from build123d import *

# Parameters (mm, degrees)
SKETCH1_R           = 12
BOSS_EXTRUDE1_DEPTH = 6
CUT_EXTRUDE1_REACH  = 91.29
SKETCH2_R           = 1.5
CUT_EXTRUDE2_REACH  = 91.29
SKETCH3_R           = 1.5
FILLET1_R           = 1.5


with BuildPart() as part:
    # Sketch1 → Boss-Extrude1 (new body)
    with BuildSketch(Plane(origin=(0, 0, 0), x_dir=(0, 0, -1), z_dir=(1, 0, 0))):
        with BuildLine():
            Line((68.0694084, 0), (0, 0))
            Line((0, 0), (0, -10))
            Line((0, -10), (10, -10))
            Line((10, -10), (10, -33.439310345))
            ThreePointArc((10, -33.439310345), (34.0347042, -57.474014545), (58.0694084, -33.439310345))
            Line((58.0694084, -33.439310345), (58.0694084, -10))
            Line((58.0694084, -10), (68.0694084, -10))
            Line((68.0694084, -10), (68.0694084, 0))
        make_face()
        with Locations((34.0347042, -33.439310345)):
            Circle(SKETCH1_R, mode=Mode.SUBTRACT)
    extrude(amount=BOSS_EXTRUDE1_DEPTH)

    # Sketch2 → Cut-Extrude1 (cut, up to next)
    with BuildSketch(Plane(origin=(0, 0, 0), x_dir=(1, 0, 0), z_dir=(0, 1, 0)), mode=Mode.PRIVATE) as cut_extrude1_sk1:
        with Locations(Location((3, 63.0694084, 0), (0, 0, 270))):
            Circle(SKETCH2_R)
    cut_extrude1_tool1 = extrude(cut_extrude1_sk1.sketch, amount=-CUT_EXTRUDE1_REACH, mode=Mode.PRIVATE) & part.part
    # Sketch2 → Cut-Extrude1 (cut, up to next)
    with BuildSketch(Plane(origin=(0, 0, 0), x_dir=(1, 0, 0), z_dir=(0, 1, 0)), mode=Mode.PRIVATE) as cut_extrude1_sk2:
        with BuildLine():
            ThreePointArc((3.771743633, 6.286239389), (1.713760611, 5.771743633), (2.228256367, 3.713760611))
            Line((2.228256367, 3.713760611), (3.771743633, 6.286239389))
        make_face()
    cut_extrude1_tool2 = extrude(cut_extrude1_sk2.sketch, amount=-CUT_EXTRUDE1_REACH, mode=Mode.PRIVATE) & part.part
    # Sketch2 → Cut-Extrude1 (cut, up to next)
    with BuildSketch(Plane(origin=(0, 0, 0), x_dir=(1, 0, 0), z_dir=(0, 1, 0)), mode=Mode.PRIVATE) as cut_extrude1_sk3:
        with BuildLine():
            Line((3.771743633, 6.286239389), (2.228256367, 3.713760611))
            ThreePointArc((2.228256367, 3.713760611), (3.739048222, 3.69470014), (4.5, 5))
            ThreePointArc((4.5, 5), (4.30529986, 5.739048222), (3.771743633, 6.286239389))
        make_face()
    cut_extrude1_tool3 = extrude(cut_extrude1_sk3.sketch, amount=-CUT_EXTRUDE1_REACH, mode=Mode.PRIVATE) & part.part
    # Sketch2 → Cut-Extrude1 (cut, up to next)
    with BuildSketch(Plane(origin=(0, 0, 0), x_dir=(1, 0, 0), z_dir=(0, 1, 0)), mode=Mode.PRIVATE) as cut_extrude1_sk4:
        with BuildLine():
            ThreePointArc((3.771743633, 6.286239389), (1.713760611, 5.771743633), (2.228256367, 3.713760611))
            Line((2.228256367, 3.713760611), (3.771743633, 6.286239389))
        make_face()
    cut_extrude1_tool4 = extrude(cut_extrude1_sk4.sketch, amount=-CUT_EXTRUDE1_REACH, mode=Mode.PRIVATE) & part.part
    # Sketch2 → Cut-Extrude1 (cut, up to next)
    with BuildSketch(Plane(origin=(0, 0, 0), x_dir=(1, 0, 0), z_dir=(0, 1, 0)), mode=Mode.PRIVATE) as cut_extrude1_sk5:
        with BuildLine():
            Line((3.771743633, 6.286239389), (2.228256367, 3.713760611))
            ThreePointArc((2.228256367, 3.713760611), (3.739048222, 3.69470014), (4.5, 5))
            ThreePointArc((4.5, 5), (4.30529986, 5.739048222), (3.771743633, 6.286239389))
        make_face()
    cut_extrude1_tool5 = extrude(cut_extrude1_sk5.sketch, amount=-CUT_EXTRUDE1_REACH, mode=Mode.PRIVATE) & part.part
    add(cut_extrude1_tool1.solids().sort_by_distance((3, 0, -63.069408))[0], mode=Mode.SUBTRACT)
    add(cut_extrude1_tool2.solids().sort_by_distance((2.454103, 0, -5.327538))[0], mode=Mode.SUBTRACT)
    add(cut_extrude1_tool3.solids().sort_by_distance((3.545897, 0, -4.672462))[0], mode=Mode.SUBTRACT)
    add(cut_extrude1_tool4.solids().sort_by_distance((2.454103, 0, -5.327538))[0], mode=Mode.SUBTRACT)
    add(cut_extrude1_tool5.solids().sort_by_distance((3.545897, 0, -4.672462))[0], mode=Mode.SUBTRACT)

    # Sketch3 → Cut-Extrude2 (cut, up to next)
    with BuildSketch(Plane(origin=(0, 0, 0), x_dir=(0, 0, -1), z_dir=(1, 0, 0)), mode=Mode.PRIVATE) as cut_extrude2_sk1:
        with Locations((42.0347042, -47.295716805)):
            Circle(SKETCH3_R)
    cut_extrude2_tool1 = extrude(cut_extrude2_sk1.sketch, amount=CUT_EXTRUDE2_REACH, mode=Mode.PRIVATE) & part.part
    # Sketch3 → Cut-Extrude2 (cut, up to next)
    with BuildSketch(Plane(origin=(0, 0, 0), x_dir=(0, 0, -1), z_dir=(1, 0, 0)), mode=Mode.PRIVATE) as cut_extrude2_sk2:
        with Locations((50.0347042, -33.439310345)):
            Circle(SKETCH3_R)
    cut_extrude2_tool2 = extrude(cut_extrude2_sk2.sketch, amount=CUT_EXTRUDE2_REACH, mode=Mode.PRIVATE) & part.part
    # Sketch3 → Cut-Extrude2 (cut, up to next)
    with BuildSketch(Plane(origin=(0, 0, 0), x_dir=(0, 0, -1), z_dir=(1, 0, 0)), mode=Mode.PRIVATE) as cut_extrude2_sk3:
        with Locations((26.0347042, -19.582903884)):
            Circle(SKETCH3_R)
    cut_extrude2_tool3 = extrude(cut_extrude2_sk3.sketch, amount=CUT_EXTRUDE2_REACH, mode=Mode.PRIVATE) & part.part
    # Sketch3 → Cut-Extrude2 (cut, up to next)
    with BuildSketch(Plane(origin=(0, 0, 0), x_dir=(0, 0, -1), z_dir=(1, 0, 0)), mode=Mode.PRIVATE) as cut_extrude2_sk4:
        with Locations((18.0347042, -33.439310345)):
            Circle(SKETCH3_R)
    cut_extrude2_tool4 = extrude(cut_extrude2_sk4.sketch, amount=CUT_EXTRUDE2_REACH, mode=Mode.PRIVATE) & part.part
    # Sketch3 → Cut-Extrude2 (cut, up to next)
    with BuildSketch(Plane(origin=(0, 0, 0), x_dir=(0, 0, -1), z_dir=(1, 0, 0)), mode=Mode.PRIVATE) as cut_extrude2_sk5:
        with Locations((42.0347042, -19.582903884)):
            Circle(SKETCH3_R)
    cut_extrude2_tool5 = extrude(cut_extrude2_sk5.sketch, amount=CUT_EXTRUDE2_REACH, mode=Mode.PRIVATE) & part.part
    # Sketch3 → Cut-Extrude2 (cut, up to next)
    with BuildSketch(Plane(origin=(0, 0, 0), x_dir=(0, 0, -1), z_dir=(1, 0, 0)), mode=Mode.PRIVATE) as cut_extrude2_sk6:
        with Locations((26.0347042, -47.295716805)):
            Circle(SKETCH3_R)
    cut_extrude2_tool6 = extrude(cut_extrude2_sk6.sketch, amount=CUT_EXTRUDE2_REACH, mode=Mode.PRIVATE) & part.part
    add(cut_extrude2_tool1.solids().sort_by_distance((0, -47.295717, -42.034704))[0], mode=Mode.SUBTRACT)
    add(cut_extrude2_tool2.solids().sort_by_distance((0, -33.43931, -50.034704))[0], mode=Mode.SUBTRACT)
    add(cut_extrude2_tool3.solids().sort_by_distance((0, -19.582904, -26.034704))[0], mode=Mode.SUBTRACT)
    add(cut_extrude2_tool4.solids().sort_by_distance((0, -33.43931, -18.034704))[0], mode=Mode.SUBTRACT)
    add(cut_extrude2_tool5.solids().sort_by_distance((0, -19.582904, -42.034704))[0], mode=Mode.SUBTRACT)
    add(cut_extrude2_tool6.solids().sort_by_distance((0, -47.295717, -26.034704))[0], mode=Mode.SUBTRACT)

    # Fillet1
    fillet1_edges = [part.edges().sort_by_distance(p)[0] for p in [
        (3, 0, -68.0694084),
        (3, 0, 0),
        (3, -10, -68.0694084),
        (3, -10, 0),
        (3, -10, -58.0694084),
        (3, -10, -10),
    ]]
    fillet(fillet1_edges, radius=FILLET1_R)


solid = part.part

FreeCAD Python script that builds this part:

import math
import FreeCAD as App
import Part
import Sketcher


def edges_at(feature, points):
    """Names of the edges that pass closest to the given points."""
    edges = feature.Shape.Edges
    near = lambda p: min(range(len(edges)), key=lambda i: edges[i].distToShape(Part.Vertex(*p))[0])
    return sorted({f"Edge{near(p) + 1}" for p in points})

doc = App.newDocument("Part")
body = doc.addObject("PartDesign::Body", "Body")

# Sketch on YZ plane
sketch1 = body.newObject("Sketcher::SketchObject", "Sketch")
sketch1.AttachmentSupport = (doc.getObject("YZ_Plane"), [""])
sketch1.MapMode = "FlatFace"
sketch1.addGeometry([
    Part.LineSegment(App.Vector(0, -68, 0), App.Vector(0, 0, 0)),  # 0
    Part.LineSegment(App.Vector(0, 0, 0), App.Vector(-10, 0, 0)),  # 1
    Part.LineSegment(App.Vector(-10, 0, 0), App.Vector(-10, -10, 0)),  # 2
    Part.LineSegment(App.Vector(-10, -10, 0), App.Vector(-33, -10, 0)),  # 3
    Part.ArcOfCircle(Part.Circle(App.Vector(-33, -34, 0), App.Vector(0, 0, 1), 24), math.radians(90), math.radians(270)),  # 4
    Part.LineSegment(App.Vector(-33, -58, 0), App.Vector(-10, -58, 0)),  # 5
    Part.LineSegment(App.Vector(-10, -58, 0), App.Vector(-10, -68, 0)),  # 6
    Part.LineSegment(App.Vector(-10, -68, 0), App.Vector(0, -68, 0)),  # 7
    Part.Circle(App.Vector(-33, -34, 0), App.Vector(0, 0, 1), 12),  # 8
], False)
sketch1.addConstraint([
    Sketcher.Constraint("Coincident", 0, 2, 1, 1),
    Sketcher.Constraint("Coincident", 1, 2, 2, 1),
    Sketcher.Constraint("Coincident", 2, 2, 3, 1),
    Sketcher.Constraint("Tangent", 3, 2, 4, 1),
    Sketcher.Constraint("Tangent", 4, 2, 5, 1),
    Sketcher.Constraint("Coincident", 5, 2, 6, 1),
    Sketcher.Constraint("Coincident", 6, 2, 7, 1),
    Sketcher.Constraint("Coincident", 7, 2, 0, 1),
    Sketcher.Constraint("Vertical", 0),
    Sketcher.Constraint("Horizontal", 1),
    Sketcher.Constraint("Vertical", 2),
    Sketcher.Constraint("Horizontal", 3),
    Sketcher.Constraint("Horizontal", 5),
    Sketcher.Constraint("Vertical", 6),
    Sketcher.Constraint("Horizontal", 7),
    Sketcher.Constraint("Coincident", 0, 2, -1, 1),
    Sketcher.Constraint("Coincident", 8, 3, 4, 3),
    Sketcher.Constraint("Vertical", 2, 2, 5, 2),
    Sketcher.Constraint("Equal", 7, 2),
    Sketcher.Constraint("Equal", 2, 6),
    Sketcher.Constraint("Diameter", 8, 24.0),
    Sketcher.Constraint("DistanceX", 1, 2, 1, 1, 10.0),
    Sketcher.Constraint("Radius", 4, 24.034704),
    Sketcher.Constraint("DistanceX", 3, 2, 3, 1, 23.43931),
])
pad1 = body.newObject("PartDesign::Pad", "Pad")
pad1.Profile = sketch1
pad1.Length = 6

# Sketch on XZ plane
sketch2 = body.newObject("Sketcher::SketchObject", "Sketch001")
sketch2.AttachmentSupport = (doc.getObject("XZ_Plane"), [""])
sketch2.MapMode = "FlatFace"
sketch2.addGeometry(Part.Circle(App.Vector(3, -63.1, 0), App.Vector(0, 0, 1), 1.5), False)
sketch2.addConstraint([
    Sketcher.Constraint("Diameter", 0, 3.0),
    Sketcher.Constraint("DistanceX", -1, 1, 0, 3, 3.0),
    Sketcher.Constraint("DistanceY", 0, 3, -1, 1, 63.069408),
])
pocket1 = body.newObject("PartDesign::Pocket", "Pocket")
pocket1.Profile = sketch2
pocket1.Type = "UpToFirst"
pocket1.Reversed = True

# Sketch on XZ plane
sketch3 = body.newObject("Sketcher::SketchObject", "Sketch002")
sketch3.AttachmentSupport = (doc.getObject("XZ_Plane"), [""])
sketch3.MapMode = "FlatFace"
sketch3.addGeometry([
    Part.ArcOfCircle(Part.Circle(App.Vector(3, -5, 0), App.Vector(0, 0, 1), 1.5), math.radians(121), math.radians(301)),
    Part.LineSegment(App.Vector(2.2, -3.7, 0), App.Vector(3.8, -6.3, 0)),
], False)
sketch3.addConstraint([
    Sketcher.Constraint("Coincident", 0, 1, 1, 1),
    Sketcher.Constraint("Coincident", 1, 2, 0, 2),
    Sketcher.Constraint("Radius", 0, 1.5),
    Sketcher.Constraint("DistanceX", -1, 1, 0, 3, 3.0),
    Sketcher.Constraint("DistanceY", 0, 3, -1, 1, 5.0),
    Sketcher.Constraint("DistanceY", 0, 1, -1, 1, 3.713761),
    Sketcher.Constraint("DistanceY", 1, 2, -1, 1, 6.286239),
])
pocket2 = body.newObject("PartDesign::Pocket", "Pocket001")
pocket2.Profile = sketch3
pocket2.Type = "UpToFirst"
pocket2.Reversed = True

# Sketch on XZ plane
sketch4 = body.newObject("Sketcher::SketchObject", "Sketch003")
sketch4.AttachmentSupport = (doc.getObject("XZ_Plane"), [""])
sketch4.MapMode = "FlatFace"
sketch4.addGeometry([
    Part.LineSegment(App.Vector(3.8, -6.3, 0), App.Vector(2.2, -3.7, 0)),
    Part.ArcOfCircle(Part.Circle(App.Vector(3, -5, 0), App.Vector(0, 0, 1), 1.5), math.radians(0), math.radians(121)),
    Part.ArcOfCircle(Part.Circle(App.Vector(3, -5, 0), App.Vector(0, 0, 1), 1.5), math.radians(-59), math.radians(0)),
], False)
sketch4.addConstraint([
    Sketcher.Constraint("Coincident", 0, 2, 1, 2),
    Sketcher.Constraint("Tangent", 1, 1, 2, 2),
    Sketcher.Constraint("Coincident", 2, 1, 0, 1),
    Sketcher.Constraint("Equal", 1, 2),
    Sketcher.Constraint("Horizontal", 2, 3, 1, 1),
    Sketcher.Constraint("Radius", 1, 1.5),
    Sketcher.Constraint("DistanceX", -1, 1, 1, 3, 3.0),
    Sketcher.Constraint("DistanceY", 1, 3, -1, 1, 5.0),
    Sketcher.Constraint("DistanceY", 0, 2, -1, 1, 3.713761),
    Sketcher.Constraint("DistanceY", 2, 1, -1, 1, 6.286239),
])
pocket3 = body.newObject("PartDesign::Pocket", "Pocket002")
pocket3.Profile = sketch4
pocket3.Type = "UpToFirst"
pocket3.Reversed = True

# Sketch on XZ plane
sketch5 = body.newObject("Sketcher::SketchObject", "Sketch004")
sketch5.AttachmentSupport = (doc.getObject("XZ_Plane"), [""])
sketch5.MapMode = "FlatFace"
sketch5.addGeometry([
    Part.ArcOfCircle(Part.Circle(App.Vector(3, -5, 0), App.Vector(0, 0, 1), 1.5), math.radians(121), math.radians(301)),
    Part.LineSegment(App.Vector(2.2, -3.7, 0), App.Vector(3.8, -6.3, 0)),
], False)
sketch5.addConstraint([
    Sketcher.Constraint("Coincident", 0, 1, 1, 1),
    Sketcher.Constraint("Coincident", 1, 2, 0, 2),
    Sketcher.Constraint("Radius", 0, 1.5),
    Sketcher.Constraint("DistanceX", -1, 1, 0, 3, 3.0),
    Sketcher.Constraint("DistanceY", 0, 3, -1, 1, 5.0),
    Sketcher.Constraint("DistanceY", 0, 1, -1, 1, 3.713761),
    Sketcher.Constraint("DistanceY", 1, 2, -1, 1, 6.286239),
])
pocket4 = body.newObject("PartDesign::Pocket", "Pocket003")
pocket4.Profile = sketch5
pocket4.Length = 10
pocket4.Reversed = True

# Sketch on XZ plane
sketch6 = body.newObject("Sketcher::SketchObject", "Sketch005")
sketch6.AttachmentSupport = (doc.getObject("XZ_Plane"), [""])
sketch6.MapMode = "FlatFace"
sketch6.addGeometry([
    Part.LineSegment(App.Vector(3.8, -6.3, 0), App.Vector(2.2, -3.7, 0)),
    Part.ArcOfCircle(Part.Circle(App.Vector(3, -5, 0), App.Vector(0, 0, 1), 1.5), math.radians(0), math.radians(121)),
    Part.ArcOfCircle(Part.Circle(App.Vector(3, -5, 0), App.Vector(0, 0, 1), 1.5), math.radians(-59), math.radians(0)),
], False)
sketch6.addConstraint([
    Sketcher.Constraint("Coincident", 0, 2, 1, 2),
    Sketcher.Constraint("Tangent", 1, 1, 2, 2),
    Sketcher.Constraint("Coincident", 2, 1, 0, 1),
    Sketcher.Constraint("Equal", 1, 2),
    Sketcher.Constraint("Horizontal", 2, 3, 1, 1),
    Sketcher.Constraint("Radius", 1, 1.5),
    Sketcher.Constraint("DistanceX", -1, 1, 1, 3, 3.0),
    Sketcher.Constraint("DistanceY", 1, 3, -1, 1, 5.0),
    Sketcher.Constraint("DistanceY", 0, 2, -1, 1, 3.713761),
    Sketcher.Constraint("DistanceY", 2, 1, -1, 1, 6.286239),
])
pocket5 = body.newObject("PartDesign::Pocket", "Pocket004")
pocket5.Profile = sketch6
pocket5.Length = 10
pocket5.Reversed = True

# Sketch on YZ plane
sketch7 = body.newObject("Sketcher::SketchObject", "Sketch006")
sketch7.AttachmentSupport = (doc.getObject("YZ_Plane"), [""])
sketch7.MapMode = "FlatFace"
sketch7.addGeometry(Part.Circle(App.Vector(-47.3, -42, 0), App.Vector(0, 0, 1), 1.5), False)
sketch7.addConstraint([
    Sketcher.Constraint("Diameter", 0, 3.0),
    Sketcher.Constraint("DistanceX", 0, 3, -1, 1, 47.295717),
    Sketcher.Constraint("DistanceY", 0, 3, -1, 1, 42.034704),
])
pocket6 = body.newObject("PartDesign::Pocket", "Pocket005")
pocket6.Profile = sketch7
pocket6.Type = "UpToFirst"
pocket6.Reversed = True

# Sketch on YZ plane
sketch8 = body.newObject("Sketcher::SketchObject", "Sketch007")
sketch8.AttachmentSupport = (doc.getObject("YZ_Plane"), [""])
sketch8.MapMode = "FlatFace"
sketch8.addGeometry(Part.Circle(App.Vector(-33.4, -50, 0), App.Vector(0, 0, 1), 1.5), False)
sketch8.addConstraint([
    Sketcher.Constraint("Diameter", 0, 3.0),
    Sketcher.Constraint("DistanceX", 0, 3, -1, 1, 33.43931),
    Sketcher.Constraint("DistanceY", 0, 3, -1, 1, 50.034704),
])
pocket7 = body.newObject("PartDesign::Pocket", "Pocket006")
pocket7.Profile = sketch8
pocket7.Type = "UpToFirst"
pocket7.Reversed = True

# Sketch on YZ plane
sketch9 = body.newObject("Sketcher::SketchObject", "Sketch008")
sketch9.AttachmentSupport = (doc.getObject("YZ_Plane"), [""])
sketch9.MapMode = "FlatFace"
sketch9.addGeometry(Part.Circle(App.Vector(-19.6, -26, 0), App.Vector(0, 0, 1), 1.5), False)
sketch9.addConstraint([
    Sketcher.Constraint("Diameter", 0, 3.0),
    Sketcher.Constraint("DistanceX", 0, 3, -1, 1, 19.582904),
    Sketcher.Constraint("DistanceY", 0, 3, -1, 1, 26.034704),
])
pocket8 = body.newObject("PartDesign::Pocket", "Pocket007")
pocket8.Profile = sketch9
pocket8.Type = "UpToFirst"
pocket8.Reversed = True

# Sketch on YZ plane
sketch10 = body.newObject("Sketcher::SketchObject", "Sketch009")
sketch10.AttachmentSupport = (doc.getObject("YZ_Plane"), [""])
sketch10.MapMode = "FlatFace"
sketch10.addGeometry(Part.Circle(App.Vector(-33.4, -18, 0), App.Vector(0, 0, 1), 1.5), False)
sketch10.addConstraint([
    Sketcher.Constraint("Diameter", 0, 3.0),
    Sketcher.Constraint("DistanceX", 0, 3, -1, 1, 33.43931),
    Sketcher.Constraint("DistanceY", 0, 3, -1, 1, 18.034704),
])
pocket9 = body.newObject("PartDesign::Pocket", "Pocket008")
pocket9.Profile = sketch10
pocket9.Type = "UpToFirst"
pocket9.Reversed = True

# Sketch on YZ plane
sketch11 = body.newObject("Sketcher::SketchObject", "Sketch010")
sketch11.AttachmentSupport = (doc.getObject("YZ_Plane"), [""])
sketch11.MapMode = "FlatFace"
sketch11.addGeometry(Part.Circle(App.Vector(-19.6, -42, 0), App.Vector(0, 0, 1), 1.5), False)
sketch11.addConstraint([
    Sketcher.Constraint("Diameter", 0, 3.0),
    Sketcher.Constraint("DistanceX", 0, 3, -1, 1, 19.582904),
    Sketcher.Constraint("DistanceY", 0, 3, -1, 1, 42.034704),
])
pocket10 = body.newObject("PartDesign::Pocket", "Pocket009")
pocket10.Profile = sketch11
pocket10.Type = "UpToFirst"
pocket10.Reversed = True

# Sketch on YZ plane
sketch12 = body.newObject("Sketcher::SketchObject", "Sketch011")
sketch12.AttachmentSupport = (doc.getObject("YZ_Plane"), [""])
sketch12.MapMode = "FlatFace"
sketch12.addGeometry(Part.Circle(App.Vector(-47.3, -26, 0), App.Vector(0, 0, 1), 1.5), False)
sketch12.addConstraint([
    Sketcher.Constraint("Diameter", 0, 3.0),
    Sketcher.Constraint("DistanceX", 0, 3, -1, 1, 47.295717),
    Sketcher.Constraint("DistanceY", 0, 3, -1, 1, 26.034704),
])
pocket11 = body.newObject("PartDesign::Pocket", "Pocket010")
pocket11.Profile = sketch12
pocket11.Type = "UpToFirst"
pocket11.Reversed = True
doc.recompute()

fillet = body.newObject("PartDesign::Fillet", "Fillet")
fillet.Base = (pocket11, edges_at(pocket11, [
    (3, 0, -68.069),
    (3, 0, 0),
    (3, -10, -68.069),
    (3, -10, 0),
    (3, -10, -58.069),
    (3, -10, -10),
]))
fillet.Radius = 1.5

doc.recompute()
